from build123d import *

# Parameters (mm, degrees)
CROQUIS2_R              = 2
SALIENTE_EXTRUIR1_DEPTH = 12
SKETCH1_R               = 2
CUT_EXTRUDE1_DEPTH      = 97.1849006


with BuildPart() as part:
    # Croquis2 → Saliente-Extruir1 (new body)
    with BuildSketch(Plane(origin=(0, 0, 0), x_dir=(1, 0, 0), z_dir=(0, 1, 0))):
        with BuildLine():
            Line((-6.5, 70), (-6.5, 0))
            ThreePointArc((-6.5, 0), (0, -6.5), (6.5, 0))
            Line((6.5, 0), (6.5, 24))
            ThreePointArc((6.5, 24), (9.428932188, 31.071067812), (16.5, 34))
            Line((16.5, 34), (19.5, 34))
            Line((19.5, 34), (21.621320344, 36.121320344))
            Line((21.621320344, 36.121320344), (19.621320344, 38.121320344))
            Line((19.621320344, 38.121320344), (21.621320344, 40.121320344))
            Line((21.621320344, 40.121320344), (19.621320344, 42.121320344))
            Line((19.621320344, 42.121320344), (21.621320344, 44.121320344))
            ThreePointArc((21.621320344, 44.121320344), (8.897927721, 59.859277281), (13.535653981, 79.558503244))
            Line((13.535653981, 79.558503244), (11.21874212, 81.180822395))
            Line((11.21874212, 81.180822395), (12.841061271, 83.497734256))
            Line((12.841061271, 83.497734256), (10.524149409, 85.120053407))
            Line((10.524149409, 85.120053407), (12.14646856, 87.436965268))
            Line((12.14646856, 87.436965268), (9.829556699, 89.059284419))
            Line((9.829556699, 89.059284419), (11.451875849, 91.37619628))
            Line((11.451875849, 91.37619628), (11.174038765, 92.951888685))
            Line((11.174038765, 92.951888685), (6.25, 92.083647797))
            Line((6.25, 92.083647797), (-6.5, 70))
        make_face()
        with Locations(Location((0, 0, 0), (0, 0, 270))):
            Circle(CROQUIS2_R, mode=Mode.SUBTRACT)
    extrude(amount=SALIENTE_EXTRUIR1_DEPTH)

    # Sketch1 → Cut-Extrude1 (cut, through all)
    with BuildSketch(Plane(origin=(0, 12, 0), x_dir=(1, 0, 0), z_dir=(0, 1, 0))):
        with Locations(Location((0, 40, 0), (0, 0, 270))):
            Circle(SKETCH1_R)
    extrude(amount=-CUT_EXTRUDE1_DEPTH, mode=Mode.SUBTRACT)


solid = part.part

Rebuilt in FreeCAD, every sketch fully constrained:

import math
import FreeCAD as App
import Part
import Sketcher

V = App.Vector
Q = App.Units.Quantity

doc = App.newDocument("Part")
body = doc.addObject("PartDesign::Body", "Body")

# Sketch on XZ plane
sketch1 = body.newObject("Sketcher::SketchObject", "Sketch")
sketch1.AttachmentSupport = (doc.getObject("XZ_Plane"), [""])
sketch1.MapMode = "FlatFace"
sketch1.addGeometry([
    Part.LineSegment(V(-6.5, -70, 0), V(-6.5, 0, 0)),  # 0
    Part.ArcOfCircle(Part.Circle(V(0, 0, 0), V(0, 0, 1), 6.5), math.radians(0), math.radians(180)),  # 1
    Part.LineSegment(V(6.5, 0, 0), V(6.5, -24, 0)),  # 2
    Part.ArcOfCircle(Part.Circle(V(16.5, -24, 0), V(0, 0, 1), 10), math.radians(180), math.radians(270)),  # 3
    Part.LineSegment(V(16.5, -34, 0), V(19.5, -34, 0)),  # 4
    Part.LineSegment(V(19.5, -34, 0), V(21.6, -36.1, 0)),  # 5
    Part.LineSegment(V(21.6, -36.1, 0), V(19.6, -38.1, 0)),  # 6
    Part.LineSegment(V(19.6, -38.1, 0), V(21.6, -40.1, 0)),  # 7
    Part.LineSegment(V(21.6, -40.1, 0), V(19.6, -42.1, 0)),  # 8
    Part.LineSegment(V(19.6, -42.1, 0), V(21.6, -44.1, 0)),  # 9
    Part.ArcOfCircle(Part.Circle(V(31.3, -65, 0), V(0, 0, 1), 23), math.radians(115), math.radians(219)),  # 10
    Part.LineSegment(V(13.5, -79.6, 0), V(11.2, -81.2, 0)),  # 11
    Part.LineSegment(V(11.2, -81.2, 0), V(12.8, -83.5, 0)),  # 12
    Part.LineSegment(V(12.8, -83.5, 0), V(10.5, -85.1, 0)),  # 13
    Part.LineSegment(V(10.5, -85.1, 0), V(12.1, -87.4, 0)),  # 14
    Part.LineSegment(V(12.1, -87.4, 0), V(9.8, -89.1, 0)),  # 15
    Part.LineSegment(V(9.8, -89.1, 0), V(11.5, -91.4, 0)),  # 16
    Part.LineSegment(V(11.5, -91.4, 0), V(11.2, -93, 0)),  # 17
    Part.LineSegment(V(11.2, -93, 0), V(6.2, -92.1, 0)),  # 18
    Part.LineSegment(V(6.2, -92.1, 0), V(-6.5, -70, 0)),  # 19
    Part.Circle(V(0, 0, 0), V(0, 0, 1), 2),  # 20
], False)
sketch1.addConstraint([
    Sketcher.Constraint("Tangent", 0, 2, 1, 2),
    Sketcher.Constraint("Tangent", 1, 1, 2, 1),
    Sketcher.Constraint("Tangent", 2, 2, 3, 1),
    Sketcher.Constraint("Tangent", 3, 2, 4, 1),
    Sketcher.Constraint("Coincident", 4, 2, 5, 1),
    Sketcher.Constraint("Coincident", 5, 2, 6, 1),
    Sketcher.Constraint("Coincident", 6, 2, 7, 1),
    Sketcher.Constraint("Coincident", 7, 2, 8, 1),
    Sketcher.Constraint("Coincident", 8, 2, 9, 1),
    Sketcher.Constraint("Coincident", 9, 2, 10, 1),
    Sketcher.Constraint("Coincident", 10, 2, 11, 1),
    Sketcher.Constraint("Coincident", 11, 2, 12, 1),
    Sketcher.Constraint("Coincident", 12, 2, 13, 1),
    Sketcher.Constraint("Coincident", 13, 2, 14, 1),
    Sketcher.Constraint("Coincident", 14, 2, 15, 1),
    Sketcher.Constraint("Coincident", 15, 2, 16, 1),
    Sketcher.Constraint("Coincident", 16, 2, 17, 1),
    Sketcher.Constraint("Coincident", 17, 2, 18, 1),
    Sketcher.Constraint("Coincident", 18, 2, 19, 1),
    Sketcher.Constraint("Coincident", 19, 2, 0, 1),
    Sketcher.Constraint("Vertical", 0),
    Sketcher.Constraint("Vertical", 2),
    Sketcher.Constraint("Horizontal", 4),
    Sketcher.Constraint("Coincident", 1, 3, -1, 1),
    Sketcher.Constraint("Coincident", 20, 3, -1, 1),
    Sketcher.Constraint("Perpendicular", 5, 6),
    Sketcher.Constraint("Perpendicular", 6, 7),
    Sketcher.Constraint("Perpendicular", 7, 8),
    Sketcher.Constraint("Perpendicular", 8, 9),
    Sketcher.Constraint("Perpendicular", 11, 12),
    Sketcher.Constraint("Perpendicular", 12, 13),
    Sketcher.Constraint("Perpendicular", 13, 14),
    Sketcher.Constraint("Perpendicular", 14, 15),
    Sketcher.Constraint("Perpendicular", 15, 16),
    Sketcher.Constraint("Perpendicular", 17, 18),
    Sketcher.Constraint("Vertical", 5, 2, 7, 2),
    Sketcher.Constraint("Vertical", 6, 2, 8, 2),
    Sketcher.Constraint("Vertical", 7, 2, 9, 2),
    Sketcher.Constraint("Equal", 6, 7),
    Sketcher.Constraint("Equal", 9, 11),
    Sketcher.Constraint("Equal", 11, 12),
    Sketcher.Constraint("Equal", 12, 13),
    Sketcher.Constraint("Equal", 13, 14),
    Sketcher.Constraint("Equal", 14, 15),
    Sketcher.Constraint("Equal", 15, 16),
    Sketcher.Constraint("Diameter", 20, Q("4 mm")),
    Sketcher.Constraint("Radius", 3, Q("10 mm")),
    Sketcher.Constraint("Radius", 10, Q("23 mm")),
    Sketcher.Constraint("Radius", 1, Q("6.5 mm")),
    Sketcher.Constraint("DistanceX", 4, 1, 4, 2, Q("3 mm")),
    Sketcher.Constraint("DistanceY", 0, 1, 0, 2, Q("70 mm")),
    Sketcher.Constraint("DistanceY", 2, 2, 2, 1, Q("24 mm")),
    Sketcher.Constraint("Angle", 11, Q("-145 deg")),
    Sketcher.Constraint("Angle", 17, Q("-100 deg")),
    Sketcher.Constraint("Angle", 19, Q("120 deg")),
    Sketcher.Constraint("Distance", 5, Q("3 mm")),
    Sketcher.Constraint("Distance", 18, Q("5 mm")),
    Sketcher.Constraint("DistanceX", 6, 2, 5, 2, Q("2 mm")),
    Sketcher.Constraint("Distance", 17, Q("1.6 mm")),
    Sketcher.Constraint("Distance", 19, Q("25.5 mm")),
])
pad1 = body.newObject("PartDesign::Pad", "Pad")
pad1.Profile = sketch1
pad1.Length = 12
pad1.Reversed = True

# Sketch on XZ plane
sketch2 = body.newObject("Sketcher::SketchObject", "Sketch001")
sketch2.AttachmentSupport = (doc.getObject("XZ_Plane"), [""])
sketch2.MapMode = "FlatFace"
sketch2.AttachmentOffset = App.Placement(V(0, 0, -12), App.Rotation())
sketch2.addGeometry(Part.Circle(V(0, -40, 0), V(0, 0, 1), 2), False)
sketch2.addConstraint([
    Sketcher.Constraint("PointOnObject", 0, 3, -2),
    Sketcher.Constraint("Diameter", 0, Q("4 mm")),
    Sketcher.Constraint("DistanceY", 0, 3, -1, 1, Q("40 mm")),
])
pocket1 = body.newObject("PartDesign::Pocket", "Pocket")
pocket1.Profile = sketch2
pocket1.Type = "ThroughAll"
pocket1.Reversed = True

doc.recompute()
